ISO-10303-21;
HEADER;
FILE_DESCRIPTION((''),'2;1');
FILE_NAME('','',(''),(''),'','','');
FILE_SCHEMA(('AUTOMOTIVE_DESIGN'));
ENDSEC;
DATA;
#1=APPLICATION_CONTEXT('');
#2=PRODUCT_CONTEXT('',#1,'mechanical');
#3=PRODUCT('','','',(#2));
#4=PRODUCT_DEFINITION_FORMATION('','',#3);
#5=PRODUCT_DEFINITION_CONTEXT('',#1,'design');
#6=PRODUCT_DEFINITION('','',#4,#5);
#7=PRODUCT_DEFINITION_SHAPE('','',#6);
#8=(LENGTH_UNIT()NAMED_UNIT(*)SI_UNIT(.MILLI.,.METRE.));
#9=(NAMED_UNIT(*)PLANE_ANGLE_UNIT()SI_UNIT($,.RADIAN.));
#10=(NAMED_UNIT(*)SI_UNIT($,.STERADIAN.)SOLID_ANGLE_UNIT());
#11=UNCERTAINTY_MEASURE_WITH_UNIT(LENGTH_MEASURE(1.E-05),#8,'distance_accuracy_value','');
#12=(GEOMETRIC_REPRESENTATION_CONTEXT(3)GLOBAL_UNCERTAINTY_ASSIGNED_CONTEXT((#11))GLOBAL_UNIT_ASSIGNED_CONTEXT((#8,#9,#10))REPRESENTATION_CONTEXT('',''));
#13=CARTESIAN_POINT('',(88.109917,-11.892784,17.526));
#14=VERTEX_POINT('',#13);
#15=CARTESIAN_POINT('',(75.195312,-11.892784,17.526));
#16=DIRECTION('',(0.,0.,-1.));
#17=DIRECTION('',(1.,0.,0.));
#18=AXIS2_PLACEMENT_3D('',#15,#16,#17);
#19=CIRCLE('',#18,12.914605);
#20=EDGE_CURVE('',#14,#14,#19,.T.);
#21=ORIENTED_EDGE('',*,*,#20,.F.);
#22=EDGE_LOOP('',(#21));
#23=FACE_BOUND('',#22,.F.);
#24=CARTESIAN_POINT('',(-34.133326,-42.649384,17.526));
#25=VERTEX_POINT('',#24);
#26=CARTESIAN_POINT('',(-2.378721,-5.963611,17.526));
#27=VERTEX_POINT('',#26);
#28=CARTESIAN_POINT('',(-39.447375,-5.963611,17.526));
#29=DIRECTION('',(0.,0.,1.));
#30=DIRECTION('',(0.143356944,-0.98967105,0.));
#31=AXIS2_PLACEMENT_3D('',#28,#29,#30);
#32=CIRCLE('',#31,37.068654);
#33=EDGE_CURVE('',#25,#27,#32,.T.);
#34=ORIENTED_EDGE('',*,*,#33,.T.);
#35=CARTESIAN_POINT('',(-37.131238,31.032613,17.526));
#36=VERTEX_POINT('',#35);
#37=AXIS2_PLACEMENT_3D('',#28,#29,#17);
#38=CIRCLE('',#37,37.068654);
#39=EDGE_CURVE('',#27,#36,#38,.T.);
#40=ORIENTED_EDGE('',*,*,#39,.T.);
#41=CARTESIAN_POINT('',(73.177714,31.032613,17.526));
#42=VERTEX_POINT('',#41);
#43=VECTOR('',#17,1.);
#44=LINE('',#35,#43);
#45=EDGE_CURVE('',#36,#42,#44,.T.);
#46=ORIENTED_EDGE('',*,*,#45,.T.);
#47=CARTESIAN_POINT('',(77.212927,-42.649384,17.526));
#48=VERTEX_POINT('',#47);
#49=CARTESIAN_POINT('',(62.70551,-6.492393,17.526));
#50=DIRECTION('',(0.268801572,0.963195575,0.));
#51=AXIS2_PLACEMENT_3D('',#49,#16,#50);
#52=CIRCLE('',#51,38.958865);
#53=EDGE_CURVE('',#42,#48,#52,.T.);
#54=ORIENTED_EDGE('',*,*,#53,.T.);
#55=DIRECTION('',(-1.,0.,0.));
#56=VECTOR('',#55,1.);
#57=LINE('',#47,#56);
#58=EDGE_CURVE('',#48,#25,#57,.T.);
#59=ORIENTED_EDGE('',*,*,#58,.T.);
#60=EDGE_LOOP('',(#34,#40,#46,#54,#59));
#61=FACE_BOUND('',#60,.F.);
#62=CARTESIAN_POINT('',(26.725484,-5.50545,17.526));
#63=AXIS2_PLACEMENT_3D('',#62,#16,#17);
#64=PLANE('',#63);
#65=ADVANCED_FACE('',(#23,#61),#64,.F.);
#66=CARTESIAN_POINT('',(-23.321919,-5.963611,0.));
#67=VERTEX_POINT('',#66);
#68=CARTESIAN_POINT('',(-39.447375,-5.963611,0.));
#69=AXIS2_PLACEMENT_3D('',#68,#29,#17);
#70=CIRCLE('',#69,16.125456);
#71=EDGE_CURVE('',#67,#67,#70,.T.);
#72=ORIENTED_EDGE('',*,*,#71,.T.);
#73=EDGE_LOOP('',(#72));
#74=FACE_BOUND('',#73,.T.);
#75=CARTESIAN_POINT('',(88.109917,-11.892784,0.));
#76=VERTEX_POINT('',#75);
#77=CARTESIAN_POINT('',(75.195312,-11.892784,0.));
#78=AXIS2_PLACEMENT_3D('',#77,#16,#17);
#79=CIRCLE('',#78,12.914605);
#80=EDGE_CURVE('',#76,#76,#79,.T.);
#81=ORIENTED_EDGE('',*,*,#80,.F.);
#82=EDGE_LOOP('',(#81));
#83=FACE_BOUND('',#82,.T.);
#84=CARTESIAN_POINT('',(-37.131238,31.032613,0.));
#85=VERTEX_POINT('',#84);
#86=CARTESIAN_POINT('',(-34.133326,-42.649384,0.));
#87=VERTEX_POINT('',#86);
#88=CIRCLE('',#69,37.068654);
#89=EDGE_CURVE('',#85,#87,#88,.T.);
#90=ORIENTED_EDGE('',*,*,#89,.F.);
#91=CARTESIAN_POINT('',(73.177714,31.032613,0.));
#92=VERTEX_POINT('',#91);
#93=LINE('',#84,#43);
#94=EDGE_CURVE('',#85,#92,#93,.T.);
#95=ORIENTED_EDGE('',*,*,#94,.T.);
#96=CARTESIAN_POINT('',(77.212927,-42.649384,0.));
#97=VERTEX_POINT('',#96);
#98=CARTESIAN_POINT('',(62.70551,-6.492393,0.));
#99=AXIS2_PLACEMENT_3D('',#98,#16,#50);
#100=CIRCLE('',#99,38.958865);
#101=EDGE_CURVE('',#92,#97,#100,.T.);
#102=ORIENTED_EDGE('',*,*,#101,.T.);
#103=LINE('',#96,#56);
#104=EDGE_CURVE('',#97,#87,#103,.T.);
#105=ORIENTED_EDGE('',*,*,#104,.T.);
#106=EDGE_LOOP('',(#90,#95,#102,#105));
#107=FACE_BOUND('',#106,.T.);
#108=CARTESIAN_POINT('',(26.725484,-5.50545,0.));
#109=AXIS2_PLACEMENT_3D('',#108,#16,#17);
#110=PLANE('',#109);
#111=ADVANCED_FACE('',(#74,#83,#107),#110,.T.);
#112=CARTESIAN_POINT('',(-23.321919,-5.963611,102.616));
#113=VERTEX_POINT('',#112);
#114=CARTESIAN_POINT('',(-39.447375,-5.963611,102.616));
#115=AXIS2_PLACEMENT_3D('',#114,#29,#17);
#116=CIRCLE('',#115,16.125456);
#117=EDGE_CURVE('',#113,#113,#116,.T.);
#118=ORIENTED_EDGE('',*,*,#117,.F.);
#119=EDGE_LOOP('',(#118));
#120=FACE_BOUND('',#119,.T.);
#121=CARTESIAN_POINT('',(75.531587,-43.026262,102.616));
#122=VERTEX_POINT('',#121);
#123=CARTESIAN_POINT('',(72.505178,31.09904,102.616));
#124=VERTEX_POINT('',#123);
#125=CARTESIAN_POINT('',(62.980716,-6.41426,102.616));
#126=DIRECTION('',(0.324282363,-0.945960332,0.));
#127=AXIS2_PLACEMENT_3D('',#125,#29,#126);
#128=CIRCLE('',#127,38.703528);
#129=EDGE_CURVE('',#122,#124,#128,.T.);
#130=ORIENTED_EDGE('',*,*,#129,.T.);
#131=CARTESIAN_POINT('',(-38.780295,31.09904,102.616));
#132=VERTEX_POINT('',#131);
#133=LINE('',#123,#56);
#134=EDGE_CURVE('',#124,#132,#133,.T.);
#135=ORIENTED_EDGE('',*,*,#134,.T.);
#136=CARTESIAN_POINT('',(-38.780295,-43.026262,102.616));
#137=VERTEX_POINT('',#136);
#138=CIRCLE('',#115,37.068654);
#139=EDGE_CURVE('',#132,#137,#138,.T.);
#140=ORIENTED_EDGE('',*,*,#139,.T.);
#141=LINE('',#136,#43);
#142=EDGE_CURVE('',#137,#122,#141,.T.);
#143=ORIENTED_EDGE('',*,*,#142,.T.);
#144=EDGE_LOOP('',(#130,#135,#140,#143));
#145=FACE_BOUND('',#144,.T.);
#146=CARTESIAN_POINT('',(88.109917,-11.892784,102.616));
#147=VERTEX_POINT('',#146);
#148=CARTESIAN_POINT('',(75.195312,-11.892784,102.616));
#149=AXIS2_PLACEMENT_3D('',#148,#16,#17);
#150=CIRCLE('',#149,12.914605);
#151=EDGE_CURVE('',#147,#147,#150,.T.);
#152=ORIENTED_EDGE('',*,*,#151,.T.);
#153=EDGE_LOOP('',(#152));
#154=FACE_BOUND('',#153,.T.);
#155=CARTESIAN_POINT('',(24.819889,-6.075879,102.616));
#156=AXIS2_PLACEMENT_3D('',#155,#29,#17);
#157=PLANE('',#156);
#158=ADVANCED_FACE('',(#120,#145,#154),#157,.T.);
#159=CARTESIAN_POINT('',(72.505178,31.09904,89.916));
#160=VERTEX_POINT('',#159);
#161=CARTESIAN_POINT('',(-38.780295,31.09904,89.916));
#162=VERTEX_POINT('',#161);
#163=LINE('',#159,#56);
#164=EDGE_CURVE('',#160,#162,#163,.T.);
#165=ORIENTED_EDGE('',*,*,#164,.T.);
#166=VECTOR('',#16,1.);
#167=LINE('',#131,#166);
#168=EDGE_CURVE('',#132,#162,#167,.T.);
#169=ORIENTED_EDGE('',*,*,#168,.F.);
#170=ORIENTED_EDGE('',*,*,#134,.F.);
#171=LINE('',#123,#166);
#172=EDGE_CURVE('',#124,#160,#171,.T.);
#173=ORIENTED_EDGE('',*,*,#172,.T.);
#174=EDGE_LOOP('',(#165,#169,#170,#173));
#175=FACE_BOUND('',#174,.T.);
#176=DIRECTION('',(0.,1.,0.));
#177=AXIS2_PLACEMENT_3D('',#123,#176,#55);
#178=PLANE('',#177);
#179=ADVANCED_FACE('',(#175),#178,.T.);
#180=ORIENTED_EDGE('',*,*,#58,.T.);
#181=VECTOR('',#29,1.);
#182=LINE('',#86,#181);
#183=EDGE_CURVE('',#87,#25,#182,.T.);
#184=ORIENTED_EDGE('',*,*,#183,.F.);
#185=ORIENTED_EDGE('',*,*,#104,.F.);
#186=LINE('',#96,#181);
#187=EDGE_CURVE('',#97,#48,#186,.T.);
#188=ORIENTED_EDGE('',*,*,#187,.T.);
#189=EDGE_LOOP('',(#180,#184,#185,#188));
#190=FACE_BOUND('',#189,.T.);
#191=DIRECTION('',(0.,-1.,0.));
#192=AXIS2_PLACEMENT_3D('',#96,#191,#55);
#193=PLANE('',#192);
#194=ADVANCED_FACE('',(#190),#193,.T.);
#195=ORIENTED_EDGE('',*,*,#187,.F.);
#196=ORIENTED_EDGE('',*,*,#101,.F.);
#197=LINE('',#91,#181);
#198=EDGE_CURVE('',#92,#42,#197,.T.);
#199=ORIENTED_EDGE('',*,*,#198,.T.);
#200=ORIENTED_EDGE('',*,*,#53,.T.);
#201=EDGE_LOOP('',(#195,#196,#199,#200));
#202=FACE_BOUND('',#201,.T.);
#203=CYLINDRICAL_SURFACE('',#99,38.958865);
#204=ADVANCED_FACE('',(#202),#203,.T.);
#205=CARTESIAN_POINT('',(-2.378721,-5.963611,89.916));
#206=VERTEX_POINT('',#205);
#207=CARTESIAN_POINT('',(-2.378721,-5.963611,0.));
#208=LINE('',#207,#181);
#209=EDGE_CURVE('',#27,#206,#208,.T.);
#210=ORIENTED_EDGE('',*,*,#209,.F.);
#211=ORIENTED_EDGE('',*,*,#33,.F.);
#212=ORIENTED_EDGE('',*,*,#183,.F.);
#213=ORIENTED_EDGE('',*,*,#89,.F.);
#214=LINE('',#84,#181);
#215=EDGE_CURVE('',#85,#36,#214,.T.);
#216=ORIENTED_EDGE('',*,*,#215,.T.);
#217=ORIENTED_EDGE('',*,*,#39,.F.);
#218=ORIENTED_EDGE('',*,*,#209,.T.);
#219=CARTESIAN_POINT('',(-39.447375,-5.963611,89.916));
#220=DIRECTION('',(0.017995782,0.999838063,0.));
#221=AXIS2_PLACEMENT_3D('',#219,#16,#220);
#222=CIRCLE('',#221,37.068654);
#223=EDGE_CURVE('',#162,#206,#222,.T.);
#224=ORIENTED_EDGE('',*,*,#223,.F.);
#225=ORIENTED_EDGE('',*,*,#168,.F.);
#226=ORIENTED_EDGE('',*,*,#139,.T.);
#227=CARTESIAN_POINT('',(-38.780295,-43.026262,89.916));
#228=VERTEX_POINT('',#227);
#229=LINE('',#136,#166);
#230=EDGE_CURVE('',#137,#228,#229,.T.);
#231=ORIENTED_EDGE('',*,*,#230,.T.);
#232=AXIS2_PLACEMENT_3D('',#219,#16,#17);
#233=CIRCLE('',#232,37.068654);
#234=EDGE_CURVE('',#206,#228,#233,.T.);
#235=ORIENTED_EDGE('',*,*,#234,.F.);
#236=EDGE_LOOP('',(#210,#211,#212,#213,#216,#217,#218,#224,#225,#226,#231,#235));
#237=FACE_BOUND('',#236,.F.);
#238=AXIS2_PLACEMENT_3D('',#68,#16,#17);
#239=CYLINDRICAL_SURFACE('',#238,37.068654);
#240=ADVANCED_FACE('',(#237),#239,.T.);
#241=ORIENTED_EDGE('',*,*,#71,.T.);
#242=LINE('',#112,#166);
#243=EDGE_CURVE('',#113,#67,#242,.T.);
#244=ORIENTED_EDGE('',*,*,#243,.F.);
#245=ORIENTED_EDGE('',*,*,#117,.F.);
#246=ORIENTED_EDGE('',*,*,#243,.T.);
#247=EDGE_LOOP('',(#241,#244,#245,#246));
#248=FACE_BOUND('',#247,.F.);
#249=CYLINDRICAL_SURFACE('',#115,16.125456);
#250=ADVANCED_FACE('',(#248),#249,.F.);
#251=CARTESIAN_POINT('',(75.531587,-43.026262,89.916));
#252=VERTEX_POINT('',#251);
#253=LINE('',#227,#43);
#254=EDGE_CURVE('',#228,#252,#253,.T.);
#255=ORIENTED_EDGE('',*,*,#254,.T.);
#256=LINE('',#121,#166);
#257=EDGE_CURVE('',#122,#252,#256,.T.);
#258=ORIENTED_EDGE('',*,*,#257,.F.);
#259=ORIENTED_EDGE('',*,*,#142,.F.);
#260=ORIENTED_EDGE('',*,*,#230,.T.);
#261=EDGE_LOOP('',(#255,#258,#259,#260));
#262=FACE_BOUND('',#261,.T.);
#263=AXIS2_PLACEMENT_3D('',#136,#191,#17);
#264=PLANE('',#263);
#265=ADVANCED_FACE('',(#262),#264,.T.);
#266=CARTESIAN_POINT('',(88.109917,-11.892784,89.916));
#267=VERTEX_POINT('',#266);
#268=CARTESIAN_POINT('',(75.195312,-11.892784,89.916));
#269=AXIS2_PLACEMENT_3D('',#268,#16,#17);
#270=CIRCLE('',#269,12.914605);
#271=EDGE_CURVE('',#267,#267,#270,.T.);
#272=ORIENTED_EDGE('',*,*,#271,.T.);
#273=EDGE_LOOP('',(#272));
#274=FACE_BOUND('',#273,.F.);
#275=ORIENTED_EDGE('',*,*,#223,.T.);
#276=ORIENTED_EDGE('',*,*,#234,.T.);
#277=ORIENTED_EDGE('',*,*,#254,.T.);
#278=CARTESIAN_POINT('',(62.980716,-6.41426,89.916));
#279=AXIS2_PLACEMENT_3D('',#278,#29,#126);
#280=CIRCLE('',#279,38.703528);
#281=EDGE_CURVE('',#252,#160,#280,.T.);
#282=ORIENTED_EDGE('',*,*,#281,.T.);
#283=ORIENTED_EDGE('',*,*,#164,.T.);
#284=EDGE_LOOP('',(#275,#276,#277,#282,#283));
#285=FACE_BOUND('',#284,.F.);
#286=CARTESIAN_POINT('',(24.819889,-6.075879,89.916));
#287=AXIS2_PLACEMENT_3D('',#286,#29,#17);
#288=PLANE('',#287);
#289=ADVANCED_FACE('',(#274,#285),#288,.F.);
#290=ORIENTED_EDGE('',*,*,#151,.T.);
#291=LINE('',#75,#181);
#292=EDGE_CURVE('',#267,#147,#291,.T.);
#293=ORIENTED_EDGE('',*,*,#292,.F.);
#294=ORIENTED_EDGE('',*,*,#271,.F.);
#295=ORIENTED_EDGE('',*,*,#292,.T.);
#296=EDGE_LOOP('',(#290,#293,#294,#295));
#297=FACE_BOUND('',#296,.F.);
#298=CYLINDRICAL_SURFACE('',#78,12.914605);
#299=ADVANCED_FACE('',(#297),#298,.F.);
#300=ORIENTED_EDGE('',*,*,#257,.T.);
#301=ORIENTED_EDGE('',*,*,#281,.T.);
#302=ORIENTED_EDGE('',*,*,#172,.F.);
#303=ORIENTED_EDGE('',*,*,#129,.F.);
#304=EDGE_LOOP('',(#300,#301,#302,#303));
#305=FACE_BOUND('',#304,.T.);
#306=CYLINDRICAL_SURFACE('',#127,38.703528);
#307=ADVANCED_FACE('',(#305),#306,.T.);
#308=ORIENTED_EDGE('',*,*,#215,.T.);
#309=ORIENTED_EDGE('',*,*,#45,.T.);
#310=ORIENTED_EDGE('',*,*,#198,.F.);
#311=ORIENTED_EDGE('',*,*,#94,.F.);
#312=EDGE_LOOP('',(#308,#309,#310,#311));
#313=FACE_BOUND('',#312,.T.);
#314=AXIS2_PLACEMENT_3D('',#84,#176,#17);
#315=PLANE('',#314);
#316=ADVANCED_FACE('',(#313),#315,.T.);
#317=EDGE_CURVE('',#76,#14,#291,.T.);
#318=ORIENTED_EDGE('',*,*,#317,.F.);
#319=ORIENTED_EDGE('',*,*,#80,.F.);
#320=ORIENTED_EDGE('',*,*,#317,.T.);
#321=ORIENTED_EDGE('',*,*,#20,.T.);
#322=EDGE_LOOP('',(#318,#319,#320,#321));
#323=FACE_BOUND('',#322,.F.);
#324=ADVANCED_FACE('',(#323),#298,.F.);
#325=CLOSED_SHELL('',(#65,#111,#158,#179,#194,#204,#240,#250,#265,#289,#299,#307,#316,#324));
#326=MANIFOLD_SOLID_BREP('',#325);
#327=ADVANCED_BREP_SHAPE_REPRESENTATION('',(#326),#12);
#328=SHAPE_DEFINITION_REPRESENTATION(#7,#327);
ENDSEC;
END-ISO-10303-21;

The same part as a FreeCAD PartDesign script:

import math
import FreeCAD as App
import Part
import Sketcher
Q = App.Units.Quantity

doc = App.newDocument("Part")
body = doc.addObject("PartDesign::Body", "Body")

sketch1 = doc.addObject("Sketcher::SketchObject", "Sketch")
body.addObject(sketch1)
sketch1.AttachmentSupport = (doc.XY_Plane, [""])
sketch1.MapMode = "FlatFace"
sketch1.addGeometry(Part.Circle(App.Vector(-39.447375, -5.963611, 0), App.Vector(0, 0, 1), 37.068654), False)
sketch1.addConstraint(Sketcher.Constraint("Diameter", 0, Q("74.137308 mm")))
sketch1.addConstraint(Sketcher.Constraint("DistanceY", 0, 3, -1, 1, Q("5.963611 mm")))
sketch1.addConstraint(Sketcher.Constraint("DistanceX", 0, 3, -1, 1, Q("39.447375 mm")))
pad1 = doc.addObject("PartDesign::Pad", "Pad")
body.addObject(pad1)
pad1.Profile = sketch1
pad1.Length = Q("4.04 in")

sketch2 = doc.addObject("Sketcher::SketchObject", "Sketch001")
body.addObject(sketch2)
sketch2.AttachmentSupport = (doc.XY_Plane, [""])
sketch2.MapMode = "FlatFace"
sketch2.AttachmentOffset = App.Placement(App.Vector(0, 0, 4.04 * 25.4), App.Rotation())
sketch2.addGeometry(Part.Circle(App.Vector(-39.447375, -5.963611, 0), App.Vector(0, 0, 1), 16.125456), False)
sketch2.addConstraint(Sketcher.Constraint("Diameter", 0, Q("32.250911 mm")))
sketch2.addConstraint(Sketcher.Constraint("DistanceY", 0, 3, -1, 1, Q("5.963611 mm")))
sketch2.addConstraint(Sketcher.Constraint("DistanceX", 0, 3, -1, 1, Q("39.447375 mm")))
pocket1 = doc.addObject("PartDesign::Pocket", "Pocket")
body.addObject(pocket1)
pocket1.Profile = sketch2
pocket1.Length = Q("5.82 in")

sketch3 = doc.addObject("Sketcher::SketchObject", "Sketch002")
body.addObject(sketch3)
sketch3.AttachmentSupport = (doc.XY_Plane, [""])
sketch3.MapMode = "FlatFace"
sketch3.AttachmentOffset = App.Placement(App.Vector(0, 0, 4.04 * 25.4), App.Rotation())
sketch3.addGeometry(Part.LineSegment(App.Vector(72.505178, 31.09904, 0), App.Vector(-38.780295, 31.09904, 0)), False)
sketch3.addGeometry(Part.ArcOfCircle(Part.Circle(App.Vector(-39.447375, -5.963611, 0), App.Vector(0, 0, 1), 37.068654), math.radians(0), math.radians(88.968862)), False)
sketch3.addGeometry(Part.ArcOfCircle(Part.Circle(App.Vector(-39.447375, -5.963611, 0), App.Vector(0, 0, 1), 37.068654), math.radians(-88.968862), math.radians(0)), False)
sketch3.addGeometry(Part.LineSegment(App.Vector(-38.780295, -43.026262, 0), App.Vector(75.531587, -43.026262, 0)), False)
sketch3.addGeometry(Part.ArcOfCircle(Part.Circle(App.Vector(62.980716, -6.41426, 0), App.Vector(0, 0, 1), 38.703528), math.radians(-71.077897), math.radians(75.753876)), False)
sketch3.addConstraint(Sketcher.Constraint("Coincident", 0, 2, 1, 2))
sketch3.addConstraint(Sketcher.Constraint("Tangent", 1, 1, 2, 2))
sketch3.addConstraint(Sketcher.Constraint("Coincident", 2, 1, 3, 1))
sketch3.addConstraint(Sketcher.Constraint("Coincident", 3, 2, 4, 1))
sketch3.addConstraint(Sketcher.Constraint("Coincident", 4, 2, 0, 1))
sketch3.addConstraint(Sketcher.Constraint("Horizontal", 0))
sketch3.addConstraint(Sketcher.Constraint("Horizontal", 3))
sketch3.addConstraint(Sketcher.Constraint("Equal", 1, 2))
sketch3.addConstraint(Sketcher.Constraint("Horizontal", 2, 3, 1, 1))
sketch3.addConstraint(Sketcher.Constraint("Vertical", 0, 2, 2, 1))
sketch3.addConstraint(Sketcher.Constraint("Radius", 1, Q("37.068654 mm")))
sketch3.addConstraint(Sketcher.Constraint("Radius", 4, Q("38.703528 mm")))
sketch3.addConstraint(Sketcher.Constraint("DistanceY", 4, 3, 0, 2, Q("37.5133 mm")))
sketch3.addConstraint(Sketcher.Constraint("DistanceX", 1, 1, 4, 2, Q("74.883899 mm")))
sketch3.addConstraint(Sketcher.Constraint("DistanceX", 0, 2, 0, 1, Q("111.285474 mm")))
sketch3.addConstraint(Sketcher.Constraint("DistanceY", 1, 3, -1, 1, Q("5.963611 mm")))
sketch3.addConstraint(Sketcher.Constraint("DistanceX", 1, 1, -1, 1, Q("2.378721 mm")))
pad2 = doc.addObject("PartDesign::Pad", "Pad001")
body.addObject(pad2)
pad2.Profile = sketch3
pad2.Length = Q("0.5 in")
pad2.Reversed = True

sketch4 = doc.addObject("Sketcher::SketchObject", "Sketch003")
body.addObject(sketch4)
sketch4.AttachmentSupport = (doc.XY_Plane, [""])
sketch4.MapMode = "FlatFace"
sketch4.addGeometry(Part.LineSegment(App.Vector(77.212927, -42.649384, 0), App.Vector(-34.133326, -42.649384, 0)), False)
sketch4.addGeometry(Part.ArcOfCircle(Part.Circle(App.Vector(-39.447375, -5.963611, 0), App.Vector(0, 0, 1), 37.068654), math.radians(-81.757855), math.radians(0)), False)
sketch4.addGeometry(Part.ArcOfCircle(Part.Circle(App.Vector(-39.447375, -5.963611, 0), App.Vector(0, 0, 1), 37.068654), math.radians(0), math.radians(86.417691)), False)
sketch4.addGeometry(Part.LineSegment(App.Vector(-37.131238, 31.032613, 0), App.Vector(73.177714, 31.032613, 0)), False)
sketch4.addGeometry(Part.ArcOfCircle(Part.Circle(App.Vector(62.70551, -6.492393, 0), App.Vector(0, 0, 1), 38.958865), math.radians(-68.137662), math.radians(74.407034)), False)
sketch4.addConstraint(Sketcher.Constraint("Coincident", 0, 2, 1, 1))
sketch4.addConstraint(Sketcher.Constraint("Tangent", 1, 2, 2, 1))
sketch4.addConstraint(Sketcher.Constraint("Coincident", 2, 2, 3, 1))
sketch4.addConstraint(Sketcher.Constraint("Coincident", 3, 2, 4, 2))
sketch4.addConstraint(Sketcher.Constraint("Coincident", 4, 1, 0, 1))
sketch4.addConstraint(Sketcher.Constraint("Horizontal", 0))
sketch4.addConstraint(Sketcher.Constraint("Horizontal", 3))
sketch4.addConstraint(Sketcher.Constraint("Equal", 1, 2))
sketch4.addConstraint(Sketcher.Constraint("Horizontal", 2, 3, 1, 2))
sketch4.addConstraint(Sketcher.Constraint("Radius", 1, Q("37.068654 mm")))
sketch4.addConstraint(Sketcher.Constraint("Radius", 4, Q("38.958865 mm")))
sketch4.addConstraint(Sketcher.Constraint("DistanceX", 3, 1, 3, 2, Q("110.308952 mm")))
sketch4.addConstraint(Sketcher.Constraint("DistanceX", 1, 3, 4, 1, Q("116.660301 mm")))
sketch4.addConstraint(Sketcher.Constraint("DistanceX", 0, 2, 0, 1, Q("111.346253 mm")))
sketch4.addConstraint(Sketcher.Constraint("DistanceY", 1, 3, -1, 1, Q("5.963611 mm")))
sketch4.addConstraint(Sketcher.Constraint("DistanceX", -1, 1, 4, 3, Q("62.70551 mm")))
sketch4.addConstraint(Sketcher.Constraint("DistanceX", 1, 2, -1, 1, Q("2.378721 mm")))
pad3 = doc.addObject("PartDesign::Pad", "Pad002")
body.addObject(pad3)
pad3.Profile = sketch4
pad3.Length = Q("0.69 in")

sketch5 = doc.addObject("Sketcher::SketchObject", "Sketch004")
body.addObject(sketch5)
sketch5.AttachmentSupport = (doc.XY_Plane, [""])
sketch5.MapMode = "FlatFace"
sketch5.addGeometry(Part.Circle(App.Vector(75.195312, -11.892784, 0), App.Vector(0, 0, 1), 12.914605), False)
sketch5.addConstraint(Sketcher.Constraint("Diameter", 0, Q("25.829209 mm")))
sketch5.addConstraint(Sketcher.Constraint("DistanceX", -1, 1, 0, 3, Q("75.195312 mm")))
sketch5.addConstraint(Sketcher.Constraint("DistanceY", 0, 3, -1, 1, Q("11.892784 mm")))
pocket2 = doc.addObject("PartDesign::Pocket", "Pocket001")
body.addObject(pocket2)
pocket2.Profile = sketch5
pocket2.Length = Q("11.69 in")
pocket2.Reversed = True

doc.recompute()
